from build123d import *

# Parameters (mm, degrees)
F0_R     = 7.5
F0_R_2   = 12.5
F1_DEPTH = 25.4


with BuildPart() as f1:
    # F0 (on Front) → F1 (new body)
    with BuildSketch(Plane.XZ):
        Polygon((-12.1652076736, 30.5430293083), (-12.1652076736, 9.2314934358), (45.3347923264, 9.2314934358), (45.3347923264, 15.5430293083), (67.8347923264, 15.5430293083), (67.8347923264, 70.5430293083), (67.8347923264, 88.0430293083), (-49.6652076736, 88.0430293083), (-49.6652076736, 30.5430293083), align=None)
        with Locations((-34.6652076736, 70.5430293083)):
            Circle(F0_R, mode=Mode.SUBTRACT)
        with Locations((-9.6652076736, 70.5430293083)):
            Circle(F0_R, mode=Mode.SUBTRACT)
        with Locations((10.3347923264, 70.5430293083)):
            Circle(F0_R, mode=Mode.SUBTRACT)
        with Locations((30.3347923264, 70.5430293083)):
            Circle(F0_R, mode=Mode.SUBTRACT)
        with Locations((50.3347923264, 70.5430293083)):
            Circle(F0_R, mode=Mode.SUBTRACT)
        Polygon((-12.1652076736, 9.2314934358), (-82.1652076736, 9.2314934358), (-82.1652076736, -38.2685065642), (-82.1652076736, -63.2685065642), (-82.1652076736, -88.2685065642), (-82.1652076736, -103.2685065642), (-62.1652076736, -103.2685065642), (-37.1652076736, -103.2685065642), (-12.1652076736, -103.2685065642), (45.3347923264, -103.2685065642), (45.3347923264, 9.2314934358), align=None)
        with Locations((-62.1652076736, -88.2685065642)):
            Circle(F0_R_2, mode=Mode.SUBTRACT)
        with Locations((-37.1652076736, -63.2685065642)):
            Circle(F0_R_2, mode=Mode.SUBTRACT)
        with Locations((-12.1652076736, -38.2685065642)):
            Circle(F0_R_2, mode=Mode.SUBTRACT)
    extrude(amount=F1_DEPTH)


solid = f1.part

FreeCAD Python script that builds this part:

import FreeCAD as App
import Part
import Sketcher
from FreeCAD import Vector


def add_polygon(sketch, points):
    """Adds a closed chain of lines whose ends are joined by coincident constraints."""
    first, n = sketch.GeometryCount, len(points)
    for a, b in zip(points, points[1:] + points[:1]):
        sketch.addGeometry(Part.LineSegment(App.Vector(*a, 0), App.Vector(*b, 0)), False)
    for i in range(n):
        sketch.addConstraint(Sketcher.Constraint("Coincident", first + i, 2, first + (i + 1) % n, 1))

doc = App.newDocument("Part")
params = doc.addObject("Spreadsheet::Sheet", "Params")
for row, (alias, value) in enumerate([
    ("sketch1_diameter", "25 mm"),
    ("sketch1_diameter2", "15 mm"),
    ("sketch1_width", "70 mm"),
    ("sketch1_width2", "127.5 mm"),
    ("sketch1_width3", "22.5 mm"),
    ("pad1_length", "25.4 mm"),
], start=1):
    params.set(f"A{row}", alias)
    params.set(f"B{row}", "=" + value)
    params.setAlias(f"B{row}", alias)

body = doc.addObject("PartDesign::Body", "Body")

sketch1 = body.newObject("Sketcher::SketchObject", "Sketch")
sketch1.AttachmentSupport = (doc.getObject("XZ_Plane"), [""])
sketch1.MapMode = "FlatFace"
add_polygon(sketch1, [(-12, 31), (-12, 9), (-82, 9), (-82, -103), (45, -103), (45, 16), (68, 16), (68, 88), (-50, 88), (-50, 31)])
sketch1.addGeometry(Part.Circle(Vector(-62, -88, 0), Vector(0, 0, 1), 12), False)
sketch1.addGeometry(Part.Circle(Vector(-37, -63, 0), Vector(0, 0, 1), 12), False)
sketch1.addGeometry(Part.Circle(Vector(-12, -38, 0), Vector(0, 0, 1), 12), False)
sketch1.addGeometry(Part.Circle(Vector(-35, 71, 0), Vector(0, 0, 1), 8), False)
sketch1.addGeometry(Part.Circle(Vector(-10, 71, 0), Vector(0, 0, 1), 8), False)
sketch1.addGeometry(Part.Circle(Vector(10, 71, 0), Vector(0, 0, 1), 8), False)
sketch1.addGeometry(Part.Circle(Vector(30, 71, 0), Vector(0, 0, 1), 8), False)
sketch1.addGeometry(Part.Circle(Vector(50, 71, 0), Vector(0, 0, 1), 8), False)
sketch1.addConstraint([
    Sketcher.Constraint("Vertical", 0),
    Sketcher.Constraint("Horizontal", 1),
    Sketcher.Constraint("Vertical", 2),
    Sketcher.Constraint("Horizontal", 3),
    Sketcher.Constraint("Vertical", 4),
    Sketcher.Constraint("Horizontal", 5),
    Sketcher.Constraint("Vertical", 6),
    Sketcher.Constraint("Horizontal", 7),
    Sketcher.Constraint("Vertical", 8),
    Sketcher.Constraint("Horizontal", 9),
    Sketcher.Constraint("Equal", 10, 11),
    Sketcher.Constraint("Equal", 11, 12),
    Sketcher.Constraint("Equal", 13, 14),
    Sketcher.Constraint("Equal", 14, 15),
    Sketcher.Constraint("Equal", 15, 16),
    Sketcher.Constraint("Equal", 16, 17),
    Sketcher.Constraint("Horizontal", 13, 3, 14, 3),
    Sketcher.Constraint("Horizontal", 14, 3, 15, 3),
    Sketcher.Constraint("Horizontal", 15, 3, 16, 3),
    Sketcher.Constraint("Horizontal", 16, 3, 17, 3),
    Sketcher.Constraint("Vertical", 12, 3, 0, 2),
    Sketcher.Constraint("Diameter", 10, 25.0),
    Sketcher.Constraint("Diameter", 13, 15.0),
    Sketcher.Constraint("DistanceX", 1, 2, 1, 1, 70.0),
    Sketcher.Constraint("DistanceX", 3, 1, 3, 2, 127.5),
    Sketcher.Constraint("DistanceX", 5, 1, 5, 2, 22.5),
    Sketcher.Constraint("DistanceX", 7, 2, 7, 1, 117.5),
    Sketcher.Constraint("DistanceY", 2, 2, 2, 1, 112.5),
    Sketcher.Constraint("DistanceY", 6, 1, 6, 2, 72.5),
    Sketcher.Constraint("DistanceY", 8, 2, 8, 1, 57.5),
    Sketcher.Constraint("DistanceX", 10, 3, 11, 3, 25.0),
    Sketcher.Constraint("DistanceY", 10, 3, 11, 3, 25.0),
    Sketcher.Constraint("DistanceX", 11, 3, 12, 3, 25.0),
    Sketcher.Constraint("DistanceY", 11, 3, 12, 3, 25.0),
    Sketcher.Constraint("DistanceX", 13, 3, 14, 3, 25.0),
    Sketcher.Constraint("DistanceX", 14, 3, 15, 3, 20.0),
    Sketcher.Constraint("DistanceX", 15, 3, 16, 3, 20.0),
    Sketcher.Constraint("DistanceX", 16, 3, 17, 3, 20.0),
    Sketcher.Constraint("DistanceY", 2, 2, 10, 3, 15.0),
    Sketcher.Constraint("DistanceX", 4, 2, 17, 3, 5.0),
    Sketcher.Constraint("DistanceY", 4, 2, 17, 3, 55.0),
    Sketcher.Constraint("DistanceY", 0, 2, 0, 1, 21.311536),
    Sketcher.Constraint("DistanceY", -1, 1, 13, 3, 70.543029),
    Sketcher.Constraint("DistanceX", 10, 3, -1, 1, 62.165208),
])
sketch1.setExpression("Constraints[31]", "Params.sketch1_diameter")
sketch1.setExpression("Constraints[32]", "Params.sketch1_diameter2")
sketch1.setExpression("Constraints[33]", "Params.sketch1_width")
sketch1.setExpression("Constraints[34]", "Params.sketch1_width2")
sketch1.setExpression("Constraints[35]", "Params.sketch1_width3")
pad1 = body.newObject("PartDesign::Pad", "Pad")
pad1.Profile = sketch1
pad1.setExpression("Length", "Params.pad1_length")

doc.recompute()
